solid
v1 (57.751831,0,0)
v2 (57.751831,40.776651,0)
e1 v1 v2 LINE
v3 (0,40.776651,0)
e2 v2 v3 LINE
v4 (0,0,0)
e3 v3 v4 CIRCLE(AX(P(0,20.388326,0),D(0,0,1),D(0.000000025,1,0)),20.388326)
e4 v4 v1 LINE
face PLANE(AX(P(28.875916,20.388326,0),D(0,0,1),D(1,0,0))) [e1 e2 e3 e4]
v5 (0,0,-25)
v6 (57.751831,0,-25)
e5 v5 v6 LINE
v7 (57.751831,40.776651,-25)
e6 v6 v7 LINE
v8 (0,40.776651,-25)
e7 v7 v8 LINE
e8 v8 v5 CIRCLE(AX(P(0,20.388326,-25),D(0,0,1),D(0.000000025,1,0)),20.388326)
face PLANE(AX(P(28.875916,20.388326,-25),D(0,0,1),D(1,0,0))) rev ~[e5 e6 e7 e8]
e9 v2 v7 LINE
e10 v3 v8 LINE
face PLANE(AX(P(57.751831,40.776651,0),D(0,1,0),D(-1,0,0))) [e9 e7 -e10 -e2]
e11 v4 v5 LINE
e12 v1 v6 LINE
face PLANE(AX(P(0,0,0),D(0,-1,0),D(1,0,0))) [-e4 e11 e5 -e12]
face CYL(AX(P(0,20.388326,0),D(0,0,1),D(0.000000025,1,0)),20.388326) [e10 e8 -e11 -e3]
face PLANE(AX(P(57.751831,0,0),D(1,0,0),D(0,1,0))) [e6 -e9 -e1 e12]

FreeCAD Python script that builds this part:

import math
import FreeCAD as App
import Part
import Sketcher

doc = App.newDocument("Part")
body = doc.addObject("PartDesign::Body", "Body")

# Sketch on XY plane
sketch1 = body.newObject("Sketcher::SketchObject", "Sketch")
sketch1.AttachmentSupport = (doc.getObject("XY_Plane"), [""])
sketch1.MapMode = "FlatFace"
sketch1.addGeometry([
    Part.LineSegment(App.Vector(0, 0, 0), App.Vector(57.751831, 0, 0)),
    Part.LineSegment(App.Vector(57.751831, 0, 0), App.Vector(57.751831, 40.776651, 0)),
    Part.LineSegment(App.Vector(57.751831, 40.776651, 0), App.Vector(0, 40.776651, 0)),
    Part.ArcOfCircle(Part.Circle(App.Vector(0, 20.388326, 0), App.Vector(0, 0, 1), 20.388326), math.radians(89.999999), math.radians(270.000001)),
], False)
sketch1.addConstraint([
    Sketcher.Constraint("Coincident", 0, 2, 1, 1),
    Sketcher.Constraint("Coincident", 1, 2, 2, 1),
    Sketcher.Constraint("Tangent", 2, 2, 3, 1),
    Sketcher.Constraint("Tangent", 3, 2, 0, 1),
    Sketcher.Constraint("Horizontal", 0),
    Sketcher.Constraint("Vertical", 1),
    Sketcher.Constraint("Horizontal", 2),
    Sketcher.Constraint("Coincident", 3, 2, -1, 1),
    Sketcher.Constraint("Radius", 3, 20.388326),
    Sketcher.Constraint("DistanceX", 0, 1, 0, 2, 57.751831),
])
pad1 = body.newObject("PartDesign::Pad", "Pad")
pad1.Profile = sketch1
pad1.Length = 25
pad1.Reversed = True

doc.recompute()
